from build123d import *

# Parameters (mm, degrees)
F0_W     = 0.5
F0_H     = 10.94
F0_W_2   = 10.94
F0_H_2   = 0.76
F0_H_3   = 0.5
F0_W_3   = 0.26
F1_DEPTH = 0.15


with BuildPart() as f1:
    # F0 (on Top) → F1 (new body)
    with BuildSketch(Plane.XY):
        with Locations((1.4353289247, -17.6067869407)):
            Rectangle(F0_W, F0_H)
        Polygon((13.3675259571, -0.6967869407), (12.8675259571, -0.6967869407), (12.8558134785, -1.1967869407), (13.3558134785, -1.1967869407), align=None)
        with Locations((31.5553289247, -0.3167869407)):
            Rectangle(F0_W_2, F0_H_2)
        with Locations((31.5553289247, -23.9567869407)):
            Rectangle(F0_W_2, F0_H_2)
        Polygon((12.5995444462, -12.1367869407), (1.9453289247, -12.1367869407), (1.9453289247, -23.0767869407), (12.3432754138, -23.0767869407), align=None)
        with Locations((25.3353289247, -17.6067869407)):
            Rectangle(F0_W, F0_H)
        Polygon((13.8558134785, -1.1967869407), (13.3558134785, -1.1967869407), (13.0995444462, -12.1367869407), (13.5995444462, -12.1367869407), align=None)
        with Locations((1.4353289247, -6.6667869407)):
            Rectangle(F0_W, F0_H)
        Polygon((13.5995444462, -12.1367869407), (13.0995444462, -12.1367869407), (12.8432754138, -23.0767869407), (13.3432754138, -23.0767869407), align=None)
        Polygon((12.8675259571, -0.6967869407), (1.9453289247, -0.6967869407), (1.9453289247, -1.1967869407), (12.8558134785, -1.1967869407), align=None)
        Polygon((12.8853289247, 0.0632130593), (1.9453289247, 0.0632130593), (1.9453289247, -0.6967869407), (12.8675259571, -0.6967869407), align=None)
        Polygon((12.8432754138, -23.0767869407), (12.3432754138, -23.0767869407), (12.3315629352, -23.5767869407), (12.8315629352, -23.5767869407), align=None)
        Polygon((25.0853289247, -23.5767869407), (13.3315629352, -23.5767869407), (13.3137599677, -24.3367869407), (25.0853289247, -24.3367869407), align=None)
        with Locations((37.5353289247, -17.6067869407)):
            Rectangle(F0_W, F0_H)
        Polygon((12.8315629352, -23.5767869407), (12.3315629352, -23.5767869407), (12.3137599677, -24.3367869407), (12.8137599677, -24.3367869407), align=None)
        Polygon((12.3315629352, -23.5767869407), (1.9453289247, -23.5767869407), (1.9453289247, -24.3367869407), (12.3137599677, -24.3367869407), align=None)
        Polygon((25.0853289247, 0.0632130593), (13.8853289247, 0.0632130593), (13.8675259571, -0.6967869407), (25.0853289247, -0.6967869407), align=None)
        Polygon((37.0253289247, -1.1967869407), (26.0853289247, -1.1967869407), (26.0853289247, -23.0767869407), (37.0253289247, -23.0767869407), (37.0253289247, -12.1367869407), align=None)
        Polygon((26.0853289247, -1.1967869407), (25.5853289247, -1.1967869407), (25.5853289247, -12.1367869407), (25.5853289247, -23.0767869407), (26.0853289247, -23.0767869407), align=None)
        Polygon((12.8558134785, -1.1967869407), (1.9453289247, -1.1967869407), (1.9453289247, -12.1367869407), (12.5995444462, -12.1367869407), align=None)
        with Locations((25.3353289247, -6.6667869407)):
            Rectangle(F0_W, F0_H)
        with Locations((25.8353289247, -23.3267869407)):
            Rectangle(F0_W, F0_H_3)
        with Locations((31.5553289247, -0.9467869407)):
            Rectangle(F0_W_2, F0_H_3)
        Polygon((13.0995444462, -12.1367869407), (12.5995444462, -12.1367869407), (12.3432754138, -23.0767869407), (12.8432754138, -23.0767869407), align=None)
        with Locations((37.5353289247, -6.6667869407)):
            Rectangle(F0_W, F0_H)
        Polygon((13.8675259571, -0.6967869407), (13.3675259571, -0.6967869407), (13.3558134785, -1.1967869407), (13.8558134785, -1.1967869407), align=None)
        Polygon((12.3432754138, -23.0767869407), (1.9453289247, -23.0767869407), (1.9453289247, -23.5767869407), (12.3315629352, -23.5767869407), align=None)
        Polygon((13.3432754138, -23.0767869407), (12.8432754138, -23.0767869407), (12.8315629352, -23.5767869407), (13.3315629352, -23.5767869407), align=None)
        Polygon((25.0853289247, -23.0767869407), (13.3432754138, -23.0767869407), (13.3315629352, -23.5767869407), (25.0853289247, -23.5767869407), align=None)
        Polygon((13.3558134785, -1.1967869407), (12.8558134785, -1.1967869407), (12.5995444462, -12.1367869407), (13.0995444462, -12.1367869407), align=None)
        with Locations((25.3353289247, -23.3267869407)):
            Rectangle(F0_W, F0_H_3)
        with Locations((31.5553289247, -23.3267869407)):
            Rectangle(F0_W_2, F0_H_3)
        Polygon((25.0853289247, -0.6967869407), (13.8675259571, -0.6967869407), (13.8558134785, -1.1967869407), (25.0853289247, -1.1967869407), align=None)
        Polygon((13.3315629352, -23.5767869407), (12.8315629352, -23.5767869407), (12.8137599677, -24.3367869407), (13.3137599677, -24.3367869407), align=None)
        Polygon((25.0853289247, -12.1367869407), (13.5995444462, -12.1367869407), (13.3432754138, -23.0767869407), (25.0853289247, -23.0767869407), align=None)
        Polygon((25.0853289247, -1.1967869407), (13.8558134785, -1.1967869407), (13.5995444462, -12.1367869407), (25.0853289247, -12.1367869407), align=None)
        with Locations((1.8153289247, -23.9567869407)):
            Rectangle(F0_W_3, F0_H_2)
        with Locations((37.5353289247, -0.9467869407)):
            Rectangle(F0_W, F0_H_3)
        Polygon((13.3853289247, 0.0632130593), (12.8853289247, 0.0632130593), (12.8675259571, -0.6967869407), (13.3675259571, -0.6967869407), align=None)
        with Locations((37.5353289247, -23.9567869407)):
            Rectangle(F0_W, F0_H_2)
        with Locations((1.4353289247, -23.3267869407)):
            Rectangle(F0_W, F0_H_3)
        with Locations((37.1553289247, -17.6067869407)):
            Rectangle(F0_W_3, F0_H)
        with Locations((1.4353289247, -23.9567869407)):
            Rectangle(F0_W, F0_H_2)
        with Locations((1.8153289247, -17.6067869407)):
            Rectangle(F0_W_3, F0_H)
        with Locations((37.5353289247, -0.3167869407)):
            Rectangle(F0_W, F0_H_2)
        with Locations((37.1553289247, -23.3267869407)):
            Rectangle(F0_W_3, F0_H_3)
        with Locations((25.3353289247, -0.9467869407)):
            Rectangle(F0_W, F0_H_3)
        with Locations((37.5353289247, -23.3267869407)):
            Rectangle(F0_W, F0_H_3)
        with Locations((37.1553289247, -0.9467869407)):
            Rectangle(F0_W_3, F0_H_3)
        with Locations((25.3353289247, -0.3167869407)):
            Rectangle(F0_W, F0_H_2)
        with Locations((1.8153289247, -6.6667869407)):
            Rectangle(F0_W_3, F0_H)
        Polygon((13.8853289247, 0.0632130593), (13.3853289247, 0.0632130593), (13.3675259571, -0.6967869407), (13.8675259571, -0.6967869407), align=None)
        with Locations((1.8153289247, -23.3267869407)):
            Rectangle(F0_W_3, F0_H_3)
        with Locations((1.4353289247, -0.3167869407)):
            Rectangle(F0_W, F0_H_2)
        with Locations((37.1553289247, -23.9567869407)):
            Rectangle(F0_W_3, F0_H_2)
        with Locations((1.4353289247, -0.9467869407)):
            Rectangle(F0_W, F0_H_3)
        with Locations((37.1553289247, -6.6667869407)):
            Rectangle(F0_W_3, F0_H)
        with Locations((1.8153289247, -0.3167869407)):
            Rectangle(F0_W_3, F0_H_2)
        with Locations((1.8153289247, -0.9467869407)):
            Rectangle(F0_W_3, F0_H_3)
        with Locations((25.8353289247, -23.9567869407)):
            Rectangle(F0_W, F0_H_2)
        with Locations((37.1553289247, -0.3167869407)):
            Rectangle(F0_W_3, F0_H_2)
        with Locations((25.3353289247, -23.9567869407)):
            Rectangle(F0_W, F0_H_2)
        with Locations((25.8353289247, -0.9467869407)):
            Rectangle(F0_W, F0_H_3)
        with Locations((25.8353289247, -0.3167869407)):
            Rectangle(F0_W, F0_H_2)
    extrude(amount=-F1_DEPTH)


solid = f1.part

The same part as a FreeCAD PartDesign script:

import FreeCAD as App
import Part
import Sketcher

V = App.Vector


def add_polygon(sketch, points):
    """Adds a closed chain of lines whose ends are joined by coincident constraints."""
    first, n = sketch.GeometryCount, len(points)
    for a, b in zip(points, points[1:] + points[:1]):
        sketch.addGeometry(Part.LineSegment(App.Vector(*a, 0), App.Vector(*b, 0)), False)
    for i in range(n):
        sketch.addConstraint(Sketcher.Constraint("Coincident", first + i, 2, first + (i + 1) % n, 1))

doc = App.newDocument("Part")
body = doc.addObject("PartDesign::Body", "Body")

# Sketch on XY plane
sketch1 = body.newObject("Sketcher::SketchObject", "Sketch")
sketch1.AttachmentSupport = (doc.getObject("XY_Plane"), [""])
sketch1.MapMode = "FlatFace"
add_polygon(sketch1, [(1.185329, -24.336787), (37.785329, -24.336787), (37.785329, 0.063213), (1.185329, 0.063213)])  # lines 0-3
sketch1.addConstraint(Sketcher.Constraint("Horizontal", 0))
sketch1.addConstraint(Sketcher.Constraint("Vertical", 1))
sketch1.addConstraint(Sketcher.Constraint("Horizontal", 2))
sketch1.addConstraint(Sketcher.Constraint("Vertical", 3))
sketch1.addConstraint(Sketcher.Constraint("DistanceX", 0, 1, 0, 2, 36.6))
sketch1.addConstraint(Sketcher.Constraint("DistanceY", 1, 1, 1, 2, 24.4))
sketch1.addConstraint(Sketcher.Constraint("DistanceX", -1, 1, 0, 2, 37.785329))
sketch1.addConstraint(Sketcher.Constraint("DistanceY", 0, 2, -1, 1, 24.336787))
pad1 = body.newObject("PartDesign::Pad", "Pad")
pad1.Profile = sketch1
pad1.Length = 0.15
pad1.Reversed = True

doc.recompute()
